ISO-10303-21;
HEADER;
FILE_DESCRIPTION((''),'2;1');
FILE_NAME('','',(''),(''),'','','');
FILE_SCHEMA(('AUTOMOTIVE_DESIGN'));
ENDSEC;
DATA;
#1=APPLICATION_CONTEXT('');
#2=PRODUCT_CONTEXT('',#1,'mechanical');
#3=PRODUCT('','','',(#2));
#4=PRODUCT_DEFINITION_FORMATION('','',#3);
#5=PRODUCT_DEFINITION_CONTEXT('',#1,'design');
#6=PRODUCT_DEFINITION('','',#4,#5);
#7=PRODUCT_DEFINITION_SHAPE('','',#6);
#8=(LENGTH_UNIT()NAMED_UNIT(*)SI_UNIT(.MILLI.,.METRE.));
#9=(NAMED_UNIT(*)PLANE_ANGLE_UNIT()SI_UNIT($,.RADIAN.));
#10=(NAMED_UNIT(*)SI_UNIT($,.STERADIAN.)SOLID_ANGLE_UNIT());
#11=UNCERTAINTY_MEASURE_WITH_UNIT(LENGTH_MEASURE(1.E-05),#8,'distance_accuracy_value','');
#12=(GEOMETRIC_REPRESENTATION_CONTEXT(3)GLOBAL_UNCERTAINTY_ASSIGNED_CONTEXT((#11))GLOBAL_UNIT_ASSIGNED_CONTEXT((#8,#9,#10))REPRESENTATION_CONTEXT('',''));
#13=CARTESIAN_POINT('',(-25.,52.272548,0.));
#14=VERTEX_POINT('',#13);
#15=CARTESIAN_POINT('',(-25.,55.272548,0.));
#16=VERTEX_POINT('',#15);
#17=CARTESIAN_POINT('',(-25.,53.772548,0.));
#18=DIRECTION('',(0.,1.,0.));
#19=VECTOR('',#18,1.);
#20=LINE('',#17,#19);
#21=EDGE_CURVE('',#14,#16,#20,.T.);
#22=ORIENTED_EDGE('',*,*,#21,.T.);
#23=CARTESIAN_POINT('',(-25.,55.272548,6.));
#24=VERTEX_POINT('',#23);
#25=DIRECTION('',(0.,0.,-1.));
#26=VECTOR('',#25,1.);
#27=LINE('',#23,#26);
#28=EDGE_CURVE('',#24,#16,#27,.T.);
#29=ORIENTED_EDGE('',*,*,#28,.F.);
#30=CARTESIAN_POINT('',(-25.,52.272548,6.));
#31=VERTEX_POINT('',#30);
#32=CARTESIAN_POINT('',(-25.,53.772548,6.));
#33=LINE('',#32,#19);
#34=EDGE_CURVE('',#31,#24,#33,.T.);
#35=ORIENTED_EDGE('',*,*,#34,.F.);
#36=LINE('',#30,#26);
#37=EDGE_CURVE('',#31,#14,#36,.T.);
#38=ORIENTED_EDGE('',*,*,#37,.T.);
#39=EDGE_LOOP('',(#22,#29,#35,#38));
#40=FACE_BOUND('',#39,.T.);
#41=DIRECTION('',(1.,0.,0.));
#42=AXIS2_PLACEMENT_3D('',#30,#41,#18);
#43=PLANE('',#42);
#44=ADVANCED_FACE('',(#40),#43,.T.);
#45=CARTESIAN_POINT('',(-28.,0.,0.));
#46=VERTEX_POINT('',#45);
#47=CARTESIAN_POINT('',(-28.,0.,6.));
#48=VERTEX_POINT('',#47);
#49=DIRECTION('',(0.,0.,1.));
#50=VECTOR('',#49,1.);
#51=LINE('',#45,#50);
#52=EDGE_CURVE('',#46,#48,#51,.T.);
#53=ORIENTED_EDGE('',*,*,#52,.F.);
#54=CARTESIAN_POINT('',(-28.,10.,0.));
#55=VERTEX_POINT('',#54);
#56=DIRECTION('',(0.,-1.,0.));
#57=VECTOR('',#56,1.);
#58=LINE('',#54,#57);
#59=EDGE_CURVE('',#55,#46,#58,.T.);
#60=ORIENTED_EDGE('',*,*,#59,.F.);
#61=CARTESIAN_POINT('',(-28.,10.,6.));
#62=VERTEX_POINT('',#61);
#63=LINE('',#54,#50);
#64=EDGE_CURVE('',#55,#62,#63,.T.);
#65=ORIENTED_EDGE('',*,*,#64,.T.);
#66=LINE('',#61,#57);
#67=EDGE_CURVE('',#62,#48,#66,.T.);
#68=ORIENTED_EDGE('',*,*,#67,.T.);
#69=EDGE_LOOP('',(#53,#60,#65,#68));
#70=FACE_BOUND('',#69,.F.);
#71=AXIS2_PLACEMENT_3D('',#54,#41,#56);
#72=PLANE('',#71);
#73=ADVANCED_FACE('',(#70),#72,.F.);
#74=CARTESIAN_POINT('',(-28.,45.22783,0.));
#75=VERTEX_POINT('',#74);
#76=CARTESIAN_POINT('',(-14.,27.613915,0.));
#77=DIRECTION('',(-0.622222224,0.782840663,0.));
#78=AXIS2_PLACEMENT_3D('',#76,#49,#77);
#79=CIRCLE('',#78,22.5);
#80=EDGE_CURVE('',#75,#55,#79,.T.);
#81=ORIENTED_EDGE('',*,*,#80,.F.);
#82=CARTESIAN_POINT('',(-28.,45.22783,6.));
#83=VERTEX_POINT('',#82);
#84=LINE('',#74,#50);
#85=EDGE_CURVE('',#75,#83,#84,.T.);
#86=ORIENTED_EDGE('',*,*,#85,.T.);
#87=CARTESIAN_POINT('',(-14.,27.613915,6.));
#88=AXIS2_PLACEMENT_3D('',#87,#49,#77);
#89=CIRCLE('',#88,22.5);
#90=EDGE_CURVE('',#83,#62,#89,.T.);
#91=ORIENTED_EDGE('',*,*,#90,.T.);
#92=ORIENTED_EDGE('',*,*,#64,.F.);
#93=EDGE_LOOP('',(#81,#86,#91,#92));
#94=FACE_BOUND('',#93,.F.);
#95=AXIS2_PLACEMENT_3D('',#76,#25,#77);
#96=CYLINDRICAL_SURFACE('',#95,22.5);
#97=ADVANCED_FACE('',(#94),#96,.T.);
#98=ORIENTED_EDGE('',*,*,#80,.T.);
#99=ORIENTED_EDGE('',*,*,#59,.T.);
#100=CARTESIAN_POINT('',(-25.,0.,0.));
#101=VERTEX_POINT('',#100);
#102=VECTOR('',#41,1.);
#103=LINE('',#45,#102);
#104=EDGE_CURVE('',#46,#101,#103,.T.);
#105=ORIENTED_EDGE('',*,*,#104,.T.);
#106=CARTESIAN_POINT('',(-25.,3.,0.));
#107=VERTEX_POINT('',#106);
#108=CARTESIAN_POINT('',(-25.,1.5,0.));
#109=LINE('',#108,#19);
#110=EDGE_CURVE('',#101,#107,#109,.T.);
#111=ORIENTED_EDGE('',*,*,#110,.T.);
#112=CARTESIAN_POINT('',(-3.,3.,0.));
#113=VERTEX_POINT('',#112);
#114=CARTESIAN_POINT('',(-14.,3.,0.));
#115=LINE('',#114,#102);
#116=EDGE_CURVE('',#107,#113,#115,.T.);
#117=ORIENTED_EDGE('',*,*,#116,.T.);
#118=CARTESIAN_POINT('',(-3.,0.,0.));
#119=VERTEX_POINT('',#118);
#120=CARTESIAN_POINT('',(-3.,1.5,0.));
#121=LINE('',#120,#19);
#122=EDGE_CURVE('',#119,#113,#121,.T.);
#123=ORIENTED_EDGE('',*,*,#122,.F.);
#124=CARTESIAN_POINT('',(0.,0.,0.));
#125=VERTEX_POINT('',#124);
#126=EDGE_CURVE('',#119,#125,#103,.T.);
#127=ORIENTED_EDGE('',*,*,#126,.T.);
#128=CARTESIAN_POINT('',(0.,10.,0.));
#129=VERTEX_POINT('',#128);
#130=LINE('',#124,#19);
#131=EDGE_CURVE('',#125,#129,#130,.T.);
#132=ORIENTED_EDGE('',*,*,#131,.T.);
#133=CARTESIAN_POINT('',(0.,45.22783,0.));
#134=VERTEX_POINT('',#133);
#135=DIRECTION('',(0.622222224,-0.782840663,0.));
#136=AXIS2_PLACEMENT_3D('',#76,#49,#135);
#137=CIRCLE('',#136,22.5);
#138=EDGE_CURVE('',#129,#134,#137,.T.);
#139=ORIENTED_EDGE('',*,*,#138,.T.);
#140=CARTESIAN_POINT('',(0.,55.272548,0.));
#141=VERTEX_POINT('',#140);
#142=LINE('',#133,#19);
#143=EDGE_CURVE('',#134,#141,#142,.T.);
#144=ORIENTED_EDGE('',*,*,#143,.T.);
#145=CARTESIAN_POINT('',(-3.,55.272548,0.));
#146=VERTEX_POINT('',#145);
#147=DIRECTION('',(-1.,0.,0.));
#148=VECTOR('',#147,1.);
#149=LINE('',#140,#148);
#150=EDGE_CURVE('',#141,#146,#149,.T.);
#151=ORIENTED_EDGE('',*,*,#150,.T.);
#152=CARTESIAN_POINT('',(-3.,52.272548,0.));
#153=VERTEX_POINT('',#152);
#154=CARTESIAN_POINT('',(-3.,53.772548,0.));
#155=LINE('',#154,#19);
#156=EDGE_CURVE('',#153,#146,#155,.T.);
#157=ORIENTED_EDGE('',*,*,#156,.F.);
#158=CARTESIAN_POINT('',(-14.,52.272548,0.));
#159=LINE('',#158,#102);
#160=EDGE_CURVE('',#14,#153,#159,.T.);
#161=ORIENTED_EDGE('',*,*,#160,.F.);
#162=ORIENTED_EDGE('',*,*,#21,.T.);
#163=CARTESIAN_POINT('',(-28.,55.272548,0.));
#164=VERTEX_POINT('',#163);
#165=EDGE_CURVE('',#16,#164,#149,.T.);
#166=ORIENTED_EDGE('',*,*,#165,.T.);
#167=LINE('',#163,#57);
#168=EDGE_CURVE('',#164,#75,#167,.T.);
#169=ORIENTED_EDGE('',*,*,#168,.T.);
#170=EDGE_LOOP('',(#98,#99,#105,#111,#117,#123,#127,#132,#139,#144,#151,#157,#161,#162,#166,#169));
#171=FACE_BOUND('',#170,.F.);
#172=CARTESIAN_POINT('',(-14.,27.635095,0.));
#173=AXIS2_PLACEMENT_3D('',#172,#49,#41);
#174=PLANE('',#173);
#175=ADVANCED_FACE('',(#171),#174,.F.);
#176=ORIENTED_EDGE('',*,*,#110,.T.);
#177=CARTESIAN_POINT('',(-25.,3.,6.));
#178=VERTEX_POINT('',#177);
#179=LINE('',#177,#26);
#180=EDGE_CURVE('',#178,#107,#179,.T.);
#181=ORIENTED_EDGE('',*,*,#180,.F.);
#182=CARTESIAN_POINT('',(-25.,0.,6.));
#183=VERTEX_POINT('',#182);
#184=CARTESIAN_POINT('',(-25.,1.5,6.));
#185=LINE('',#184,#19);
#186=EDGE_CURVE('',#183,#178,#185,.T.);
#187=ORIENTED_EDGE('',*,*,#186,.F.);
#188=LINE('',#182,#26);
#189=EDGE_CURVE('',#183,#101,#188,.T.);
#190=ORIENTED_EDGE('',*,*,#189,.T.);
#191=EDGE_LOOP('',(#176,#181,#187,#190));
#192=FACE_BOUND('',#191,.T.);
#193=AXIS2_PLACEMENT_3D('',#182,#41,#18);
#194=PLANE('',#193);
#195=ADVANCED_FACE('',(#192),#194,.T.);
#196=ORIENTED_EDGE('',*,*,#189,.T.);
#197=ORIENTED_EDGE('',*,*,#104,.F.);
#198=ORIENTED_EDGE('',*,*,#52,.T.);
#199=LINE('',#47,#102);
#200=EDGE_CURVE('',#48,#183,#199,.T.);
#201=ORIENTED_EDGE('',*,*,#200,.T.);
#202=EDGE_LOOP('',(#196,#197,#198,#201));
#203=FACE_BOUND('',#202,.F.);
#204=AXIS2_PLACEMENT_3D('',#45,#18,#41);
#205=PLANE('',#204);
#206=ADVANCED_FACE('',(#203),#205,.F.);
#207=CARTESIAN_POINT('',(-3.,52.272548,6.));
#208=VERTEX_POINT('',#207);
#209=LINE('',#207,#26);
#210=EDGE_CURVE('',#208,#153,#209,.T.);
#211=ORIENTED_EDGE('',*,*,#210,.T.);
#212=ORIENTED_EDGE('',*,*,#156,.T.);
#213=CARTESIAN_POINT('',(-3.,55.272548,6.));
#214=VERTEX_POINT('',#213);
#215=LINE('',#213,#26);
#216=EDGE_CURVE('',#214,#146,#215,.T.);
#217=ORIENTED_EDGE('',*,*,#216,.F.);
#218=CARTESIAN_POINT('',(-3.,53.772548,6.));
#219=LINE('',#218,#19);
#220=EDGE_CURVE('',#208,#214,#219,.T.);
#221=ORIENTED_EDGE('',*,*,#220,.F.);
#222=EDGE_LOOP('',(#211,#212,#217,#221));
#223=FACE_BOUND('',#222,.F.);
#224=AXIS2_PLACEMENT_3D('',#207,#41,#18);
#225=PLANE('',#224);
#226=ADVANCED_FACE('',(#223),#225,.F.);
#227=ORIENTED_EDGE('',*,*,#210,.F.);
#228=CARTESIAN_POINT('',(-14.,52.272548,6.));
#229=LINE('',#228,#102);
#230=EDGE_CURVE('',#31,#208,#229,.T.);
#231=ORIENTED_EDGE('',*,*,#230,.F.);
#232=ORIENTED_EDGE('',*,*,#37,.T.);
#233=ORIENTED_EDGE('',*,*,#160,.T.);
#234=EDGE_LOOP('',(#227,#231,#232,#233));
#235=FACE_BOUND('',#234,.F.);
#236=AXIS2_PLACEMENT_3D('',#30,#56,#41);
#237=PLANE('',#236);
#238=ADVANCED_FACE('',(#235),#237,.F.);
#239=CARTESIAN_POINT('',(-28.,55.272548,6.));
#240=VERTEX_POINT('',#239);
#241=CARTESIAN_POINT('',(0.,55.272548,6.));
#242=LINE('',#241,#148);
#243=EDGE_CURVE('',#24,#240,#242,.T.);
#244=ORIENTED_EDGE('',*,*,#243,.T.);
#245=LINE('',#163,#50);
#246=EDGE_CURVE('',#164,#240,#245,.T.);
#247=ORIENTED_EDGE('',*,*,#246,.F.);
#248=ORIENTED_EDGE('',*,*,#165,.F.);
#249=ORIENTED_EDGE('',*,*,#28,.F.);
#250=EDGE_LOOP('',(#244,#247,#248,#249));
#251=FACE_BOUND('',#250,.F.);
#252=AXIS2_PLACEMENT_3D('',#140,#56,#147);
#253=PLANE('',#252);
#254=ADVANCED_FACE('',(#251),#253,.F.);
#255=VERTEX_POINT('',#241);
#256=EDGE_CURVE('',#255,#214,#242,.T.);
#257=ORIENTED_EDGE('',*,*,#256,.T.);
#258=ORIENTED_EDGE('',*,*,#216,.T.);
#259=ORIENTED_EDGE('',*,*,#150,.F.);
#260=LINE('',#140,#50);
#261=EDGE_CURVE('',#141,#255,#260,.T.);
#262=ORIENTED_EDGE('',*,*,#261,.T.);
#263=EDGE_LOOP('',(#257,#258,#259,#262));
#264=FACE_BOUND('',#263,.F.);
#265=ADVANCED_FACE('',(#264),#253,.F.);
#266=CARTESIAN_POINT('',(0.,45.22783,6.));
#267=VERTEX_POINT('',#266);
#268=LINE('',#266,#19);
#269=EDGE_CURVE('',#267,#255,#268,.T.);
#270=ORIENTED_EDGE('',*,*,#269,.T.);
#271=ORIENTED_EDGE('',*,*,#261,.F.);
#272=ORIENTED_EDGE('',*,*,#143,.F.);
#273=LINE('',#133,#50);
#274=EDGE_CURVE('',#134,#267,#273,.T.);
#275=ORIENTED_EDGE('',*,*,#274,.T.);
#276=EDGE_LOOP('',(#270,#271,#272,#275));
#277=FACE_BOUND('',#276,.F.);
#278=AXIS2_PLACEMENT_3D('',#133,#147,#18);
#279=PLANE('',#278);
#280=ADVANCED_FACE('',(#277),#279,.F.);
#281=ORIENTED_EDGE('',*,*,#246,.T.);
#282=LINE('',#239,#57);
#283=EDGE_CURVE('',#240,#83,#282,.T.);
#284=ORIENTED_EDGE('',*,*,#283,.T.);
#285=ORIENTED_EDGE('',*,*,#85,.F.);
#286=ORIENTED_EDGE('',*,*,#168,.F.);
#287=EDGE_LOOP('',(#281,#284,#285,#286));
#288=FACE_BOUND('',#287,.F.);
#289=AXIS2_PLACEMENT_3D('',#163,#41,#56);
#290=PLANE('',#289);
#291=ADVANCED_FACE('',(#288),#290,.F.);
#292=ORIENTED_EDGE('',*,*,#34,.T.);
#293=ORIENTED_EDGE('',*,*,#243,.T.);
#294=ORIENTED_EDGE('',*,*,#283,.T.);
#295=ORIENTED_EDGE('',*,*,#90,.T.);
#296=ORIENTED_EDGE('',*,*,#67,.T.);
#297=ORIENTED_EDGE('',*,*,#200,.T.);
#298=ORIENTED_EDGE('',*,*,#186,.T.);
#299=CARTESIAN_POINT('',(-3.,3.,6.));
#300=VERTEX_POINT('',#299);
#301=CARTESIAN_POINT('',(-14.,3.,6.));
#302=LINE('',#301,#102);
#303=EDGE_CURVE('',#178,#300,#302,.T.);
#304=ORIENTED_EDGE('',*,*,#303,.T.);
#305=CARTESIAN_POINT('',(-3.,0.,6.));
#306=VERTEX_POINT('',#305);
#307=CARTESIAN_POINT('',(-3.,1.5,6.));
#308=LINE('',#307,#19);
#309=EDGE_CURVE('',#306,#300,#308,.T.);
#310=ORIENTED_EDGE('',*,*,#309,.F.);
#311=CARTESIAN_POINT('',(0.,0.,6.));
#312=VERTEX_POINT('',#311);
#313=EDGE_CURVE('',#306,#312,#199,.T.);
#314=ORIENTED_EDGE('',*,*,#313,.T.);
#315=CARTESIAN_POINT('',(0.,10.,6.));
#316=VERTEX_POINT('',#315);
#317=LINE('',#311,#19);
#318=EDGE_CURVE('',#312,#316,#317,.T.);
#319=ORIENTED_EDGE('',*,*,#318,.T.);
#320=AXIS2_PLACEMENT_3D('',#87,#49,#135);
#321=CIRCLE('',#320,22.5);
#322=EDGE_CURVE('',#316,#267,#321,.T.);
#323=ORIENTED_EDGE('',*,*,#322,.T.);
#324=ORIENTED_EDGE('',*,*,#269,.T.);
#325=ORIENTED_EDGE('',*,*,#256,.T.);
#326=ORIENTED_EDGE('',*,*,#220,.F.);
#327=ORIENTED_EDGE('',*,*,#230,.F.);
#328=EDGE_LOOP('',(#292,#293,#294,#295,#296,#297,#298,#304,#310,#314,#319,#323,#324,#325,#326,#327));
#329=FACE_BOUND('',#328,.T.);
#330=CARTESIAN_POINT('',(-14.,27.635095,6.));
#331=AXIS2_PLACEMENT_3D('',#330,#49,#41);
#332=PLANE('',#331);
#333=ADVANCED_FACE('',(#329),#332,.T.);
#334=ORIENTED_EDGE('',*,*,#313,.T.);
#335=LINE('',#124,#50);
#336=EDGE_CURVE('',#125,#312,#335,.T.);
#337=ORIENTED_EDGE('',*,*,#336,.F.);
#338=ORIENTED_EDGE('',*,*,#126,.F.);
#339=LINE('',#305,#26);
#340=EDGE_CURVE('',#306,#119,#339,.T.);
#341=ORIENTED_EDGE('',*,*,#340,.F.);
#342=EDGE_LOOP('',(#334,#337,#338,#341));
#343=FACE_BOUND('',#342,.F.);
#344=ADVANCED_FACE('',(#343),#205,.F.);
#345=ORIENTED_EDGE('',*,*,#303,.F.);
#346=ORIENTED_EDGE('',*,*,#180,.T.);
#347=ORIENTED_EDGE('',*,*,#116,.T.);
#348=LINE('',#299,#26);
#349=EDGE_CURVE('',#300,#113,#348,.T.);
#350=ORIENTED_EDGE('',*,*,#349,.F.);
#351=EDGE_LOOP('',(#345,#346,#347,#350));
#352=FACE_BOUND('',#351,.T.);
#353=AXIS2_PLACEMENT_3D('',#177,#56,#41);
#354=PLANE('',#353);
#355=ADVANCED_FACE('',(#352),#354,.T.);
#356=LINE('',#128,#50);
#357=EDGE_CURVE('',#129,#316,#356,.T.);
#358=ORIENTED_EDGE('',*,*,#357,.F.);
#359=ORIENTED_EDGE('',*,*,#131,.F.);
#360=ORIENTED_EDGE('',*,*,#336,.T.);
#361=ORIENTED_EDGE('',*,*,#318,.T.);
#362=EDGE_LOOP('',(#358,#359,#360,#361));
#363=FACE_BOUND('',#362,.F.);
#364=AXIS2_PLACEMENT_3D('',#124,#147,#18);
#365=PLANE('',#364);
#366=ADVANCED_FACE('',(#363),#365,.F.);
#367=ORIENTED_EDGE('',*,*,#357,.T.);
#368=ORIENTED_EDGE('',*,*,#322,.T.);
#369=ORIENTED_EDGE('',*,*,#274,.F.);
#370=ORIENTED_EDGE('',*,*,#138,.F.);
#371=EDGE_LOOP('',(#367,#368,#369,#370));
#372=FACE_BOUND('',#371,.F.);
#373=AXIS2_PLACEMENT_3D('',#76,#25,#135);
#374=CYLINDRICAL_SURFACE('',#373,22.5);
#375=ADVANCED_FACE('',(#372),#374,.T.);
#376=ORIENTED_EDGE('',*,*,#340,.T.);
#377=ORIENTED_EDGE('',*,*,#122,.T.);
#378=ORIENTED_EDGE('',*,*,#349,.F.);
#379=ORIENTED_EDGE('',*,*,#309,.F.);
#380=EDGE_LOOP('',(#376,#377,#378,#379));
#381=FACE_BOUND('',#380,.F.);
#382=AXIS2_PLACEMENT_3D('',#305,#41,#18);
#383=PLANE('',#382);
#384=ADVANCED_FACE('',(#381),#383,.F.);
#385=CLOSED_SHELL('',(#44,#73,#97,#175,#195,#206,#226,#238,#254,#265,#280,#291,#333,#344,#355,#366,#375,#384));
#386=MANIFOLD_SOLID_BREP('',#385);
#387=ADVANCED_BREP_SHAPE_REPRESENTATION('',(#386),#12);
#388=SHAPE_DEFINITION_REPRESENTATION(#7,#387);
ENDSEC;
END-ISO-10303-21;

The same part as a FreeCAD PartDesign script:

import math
import FreeCAD as App
import Part
import Sketcher
from FreeCAD import Vector

doc = App.newDocument("Part")
body = doc.addObject("PartDesign::Body", "Body")

sketch1 = body.newObject("Sketcher::SketchObject", "Sketch")
sketch1.AttachmentSupport = (doc.getObject("XY_Plane"), [""])
sketch1.MapMode = "FlatFace"
sketch1.addGeometry([
    Part.LineSegment(Vector(-28, 0, 0), Vector(0, 0, 0)),
    Part.LineSegment(Vector(0, 0, 0), Vector(0, 10, 0)),
    Part.ArcOfCircle(Part.Circle(Vector(-14, 28, 0), Vector(0, 0, 1), 23), math.radians(-52), math.radians(52)),
    Part.LineSegment(Vector(0, 45, 0), Vector(0, 55, 0)),
    Part.LineSegment(Vector(0, 55, 0), Vector(-28, 55, 0)),
    Part.LineSegment(Vector(-28, 55, 0), Vector(-28, 45, 0)),
    Part.ArcOfCircle(Part.Circle(Vector(-14, 28, 0), Vector(0, 0, 1), 23), math.radians(128), math.radians(232)),
    Part.LineSegment(Vector(-28, 10, 0), Vector(-28, 0, 0)),
], False)
sketch1.addConstraint([
    Sketcher.Constraint("Coincident", 0, 2, 1, 1),
    Sketcher.Constraint("Coincident", 1, 2, 2, 1),
    Sketcher.Constraint("Coincident", 2, 2, 3, 1),
    Sketcher.Constraint("Coincident", 3, 2, 4, 1),
    Sketcher.Constraint("Coincident", 4, 2, 5, 1),
    Sketcher.Constraint("Coincident", 5, 2, 6, 1),
    Sketcher.Constraint("Coincident", 6, 2, 7, 1),
    Sketcher.Constraint("Coincident", 7, 2, 0, 1),
    Sketcher.Constraint("Horizontal", 0),
    Sketcher.Constraint("Vertical", 1),
    Sketcher.Constraint("Vertical", 3),
    Sketcher.Constraint("Horizontal", 4),
    Sketcher.Constraint("Vertical", 5),
    Sketcher.Constraint("Vertical", 7),
    Sketcher.Constraint("Coincident", 0, 2, -1, 1),
    Sketcher.Constraint("Coincident", 6, 3, 2, 3),
    Sketcher.Constraint("Equal", 2, 6),
    Sketcher.Constraint("PointOnObject", 2, 2, -2),
    Sketcher.Constraint("Horizontal", 2, 2, 5, 2),
    Sketcher.Constraint("Horizontal", 1, 2, 6, 2),
    Sketcher.Constraint("Radius", 2, 22.5),
    Sketcher.Constraint("DistanceX", 0, 1, 0, 2, 28.0),
    Sketcher.Constraint("DistanceY", 1, 1, 1, 2, 10.0),
    Sketcher.Constraint("DistanceY", 3, 1, 3, 2, 10.044718),
])
pad1 = body.newObject("PartDesign::Pad", "Pad")
pad1.Profile = sketch1
pad1.Length = 6

sketch2 = body.newObject("Sketcher::SketchObject", "Sketch001")
sketch2.AttachmentSupport = (doc.getObject("XY_Plane"), [""])
sketch2.MapMode = "FlatFace"
sketch2.AttachmentOffset = App.Placement(Vector(0, 0, 6), App.Rotation())
sketch2.addGeometry([
    Part.LineSegment(Vector(-25, 55.3, 0), Vector(-25, 52.3, 0)),
    Part.LineSegment(Vector(-25, 52.3, 0), Vector(-3, 52.3, 0)),
    Part.LineSegment(Vector(-3, 52.3, 0), Vector(-3, 55.3, 0)),
    Part.LineSegment(Vector(-3, 55.3, 0), Vector(-25, 55.3, 0)),
    Part.LineSegment(Vector(-25, 3, 0), Vector(-25, 0, 0)),
    Part.LineSegment(Vector(-25, 0, 0), Vector(-3, 0, 0)),
    Part.LineSegment(Vector(-3, 0, 0), Vector(-3, 3, 0)),
    Part.LineSegment(Vector(-3, 3, 0), Vector(-25, 3, 0)),
], False)
sketch2.addConstraint([
    Sketcher.Constraint("Coincident", 0, 2, 1, 1),
    Sketcher.Constraint("Coincident", 1, 2, 2, 1),
    Sketcher.Constraint("Coincident", 2, 2, 3, 1),
    Sketcher.Constraint("Coincident", 3, 2, 0, 1),
    Sketcher.Constraint("Coincident", 4, 2, 5, 1),
    Sketcher.Constraint("Coincident", 5, 2, 6, 1),
    Sketcher.Constraint("Coincident", 6, 2, 7, 1),
    Sketcher.Constraint("Coincident", 7, 2, 4, 1),
    Sketcher.Constraint("Vertical", 0),
    Sketcher.Constraint("Horizontal", 1),
    Sketcher.Constraint("Vertical", 2),
    Sketcher.Constraint("Horizontal", 3),
    Sketcher.Constraint("Vertical", 4),
    Sketcher.Constraint("Horizontal", 5),
    Sketcher.Constraint("Vertical", 6),
    Sketcher.Constraint("Horizontal", 7),
    Sketcher.Constraint("PointOnObject", 4, 2, -1),
    Sketcher.Constraint("Vertical", 3, 2, 4, 2),
    Sketcher.Constraint("Vertical", 2, 2, 5, 2),
    Sketcher.Constraint("Equal", 2, 4),
    Sketcher.Constraint("DistanceX", 1, 1, 1, 2, 22.0),
    Sketcher.Constraint("DistanceY", 0, 2, 0, 1, 3.0),
    Sketcher.Constraint("DistanceX", 0, 2, -1, 1, 25.0),
    Sketcher.Constraint("DistanceY", -1, 1, 0, 2, 52.272548),
])
pocket1 = body.newObject("PartDesign::Pocket", "Pocket")
pocket1.Profile = sketch2
pocket1.Type = "ThroughAll"

doc.recompute()
